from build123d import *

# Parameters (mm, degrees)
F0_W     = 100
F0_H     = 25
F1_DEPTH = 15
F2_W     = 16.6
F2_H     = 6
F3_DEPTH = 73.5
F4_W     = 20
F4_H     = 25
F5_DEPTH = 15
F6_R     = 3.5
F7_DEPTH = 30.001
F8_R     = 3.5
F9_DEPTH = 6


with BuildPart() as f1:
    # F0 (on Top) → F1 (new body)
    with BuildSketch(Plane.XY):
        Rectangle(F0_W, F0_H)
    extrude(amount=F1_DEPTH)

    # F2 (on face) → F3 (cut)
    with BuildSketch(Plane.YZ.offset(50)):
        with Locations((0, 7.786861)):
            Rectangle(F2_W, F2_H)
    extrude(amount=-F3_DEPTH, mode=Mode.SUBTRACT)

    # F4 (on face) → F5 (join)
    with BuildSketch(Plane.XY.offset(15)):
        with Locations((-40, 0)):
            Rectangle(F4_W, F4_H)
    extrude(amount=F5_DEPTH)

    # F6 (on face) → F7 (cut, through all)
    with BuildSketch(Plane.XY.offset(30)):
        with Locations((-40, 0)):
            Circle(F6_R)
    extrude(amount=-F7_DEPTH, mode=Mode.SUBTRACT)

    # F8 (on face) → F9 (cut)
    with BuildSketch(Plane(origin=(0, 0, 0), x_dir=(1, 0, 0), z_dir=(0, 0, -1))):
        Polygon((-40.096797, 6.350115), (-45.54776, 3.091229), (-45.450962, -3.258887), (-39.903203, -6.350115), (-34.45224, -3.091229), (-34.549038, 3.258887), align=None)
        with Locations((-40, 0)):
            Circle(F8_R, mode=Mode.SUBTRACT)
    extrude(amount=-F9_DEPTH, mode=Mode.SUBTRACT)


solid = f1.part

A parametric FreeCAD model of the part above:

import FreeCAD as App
import Part
import Sketcher
from FreeCAD import Vector
Q = App.Units.Quantity


def add_polygon(sketch, points):
    """Adds a closed chain of lines whose ends are joined by coincident constraints."""
    first, n = sketch.GeometryCount, len(points)
    for a, b in zip(points, points[1:] + points[:1]):
        sketch.addGeometry(Part.LineSegment(App.Vector(*a, 0), App.Vector(*b, 0)), False)
    for i in range(n):
        sketch.addConstraint(Sketcher.Constraint("Coincident", first + i, 2, first + (i + 1) % n, 1))

doc = App.newDocument("Part")
params = doc.addObject("Spreadsheet::Sheet", "Params")
for row, (alias, value) in enumerate([
    ("sketch1_width", "100 mm"),
    ("sketch1_height", "25 mm"),
    ("pad1_length", "15 mm"),
    ("sketch2_height", "6 mm"),
    ("sketch2_width", "16.6 mm"),
    ("pocket1_length", "73.5 mm"),
    ("sketch3_width", "20 mm"),
    ("sketch3_height", "25 mm"),
    ("pad2_length", "15 mm"),
    ("sketch4_diameter", "7 mm"),
    ("sketch5_diameter", "7 mm"),
    ("pocket3_length", "6 mm"),
], start=1):
    params.set(f"A{row}", alias)
    params.set(f"B{row}", "=" + value)
    params.setAlias(f"B{row}", alias)

body = doc.addObject("PartDesign::Body", "Body")

sketch1 = doc.addObject("Sketcher::SketchObject", "Sketch")
body.addObject(sketch1)
sketch1.AttachmentSupport = (doc.XY_Plane, [""])
sketch1.MapMode = "FlatFace"
add_polygon(sketch1, [(-50, 12), (-50, -12), (50, -12), (50, 12)])
sketch1.addConstraint(Sketcher.Constraint("Vertical", 0))
sketch1.addConstraint(Sketcher.Constraint("Horizontal", 1))
sketch1.addConstraint(Sketcher.Constraint("Vertical", 2))
sketch1.addConstraint(Sketcher.Constraint("Horizontal", 3))
sketch1.addConstraint(Sketcher.Constraint("Symmetric", 0, 2, 2, 2, -1, 1))
sketch1.addConstraint(Sketcher.Constraint("DistanceX", 1, 1, 1, 2, Q("100 mm")))
sketch1.addConstraint(Sketcher.Constraint("DistanceY", 0, 2, 0, 1, Q("25 mm")))
sketch1.setExpression("Constraints[9]", "Params.sketch1_width")
sketch1.setExpression("Constraints[10]", "Params.sketch1_height")
pad1 = doc.addObject("PartDesign::Pad", "Pad")
body.addObject(pad1)
pad1.Profile = sketch1
pad1.setExpression("Length", "Params.pad1_length")

sketch2 = doc.addObject("Sketcher::SketchObject", "Sketch001")
body.addObject(sketch2)
sketch2.AttachmentSupport = (doc.YZ_Plane, [""])
sketch2.MapMode = "FlatFace"
sketch2.AttachmentOffset = App.Placement(Vector(0, 0, 50), App.Rotation())
add_polygon(sketch2, [(-8, 11), (-8, 5), (8, 5), (8, 11)])
sketch2.addConstraint(Sketcher.Constraint("Vertical", 0))
sketch2.addConstraint(Sketcher.Constraint("Horizontal", 1))
sketch2.addConstraint(Sketcher.Constraint("Vertical", 2))
sketch2.addConstraint(Sketcher.Constraint("Horizontal", 3))
sketch2.addConstraint(Sketcher.Constraint("DistanceY", 0, 2, 0, 1, Q("6 mm")))
sketch2.addConstraint(Sketcher.Constraint("DistanceX", 1, 1, 1, 2, Q("16.6 mm")))
sketch2.addConstraint(Sketcher.Constraint("DistanceX", 0, 2, -1, 1, Q("8.3 mm")))
sketch2.addConstraint(Sketcher.Constraint("DistanceY", -1, 1, 0, 2, Q("4.786861 mm")))
sketch2.setExpression("Constraints[8]", "Params.sketch2_height")
sketch2.setExpression("Constraints[9]", "Params.sketch2_width")
pocket1 = doc.addObject("PartDesign::Pocket", "Pocket")
body.addObject(pocket1)
pocket1.Profile = sketch2
pocket1.setExpression("Length", "Params.pocket1_length")

sketch3 = doc.addObject("Sketcher::SketchObject", "Sketch002")
body.addObject(sketch3)
sketch3.AttachmentSupport = (doc.XY_Plane, [""])
sketch3.MapMode = "FlatFace"
sketch3.AttachmentOffset = App.Placement(Vector(0, 0, 15), App.Rotation())
add_polygon(sketch3, [(-50, 12), (-50, -12), (-30, -12), (-30, 12)])
sketch3.addConstraint(Sketcher.Constraint("Vertical", 0))
sketch3.addConstraint(Sketcher.Constraint("Horizontal", 1))
sketch3.addConstraint(Sketcher.Constraint("Vertical", 2))
sketch3.addConstraint(Sketcher.Constraint("Horizontal", 3))
sketch3.addConstraint(Sketcher.Constraint("DistanceX", 1, 1, 1, 2, Q("20 mm")))
sketch3.addConstraint(Sketcher.Constraint("DistanceY", 0, 2, 0, 1, Q("25 mm")))
sketch3.addConstraint(Sketcher.Constraint("DistanceX", 0, 2, -1, 1, Q("50 mm")))
sketch3.addConstraint(Sketcher.Constraint("DistanceY", 0, 2, -1, 1, Q("12.5 mm")))
sketch3.setExpression("Constraints[8]", "Params.sketch3_width")
sketch3.setExpression("Constraints[9]", "Params.sketch3_height")
pad2 = doc.addObject("PartDesign::Pad", "Pad001")
body.addObject(pad2)
pad2.Profile = sketch3
pad2.setExpression("Length", "Params.pad2_length")

sketch4 = doc.addObject("Sketcher::SketchObject", "Sketch003")
body.addObject(sketch4)
sketch4.AttachmentSupport = (doc.XY_Plane, [""])
sketch4.MapMode = "FlatFace"
sketch4.AttachmentOffset = App.Placement(Vector(0, 0, 30), App.Rotation())
sketch4.addGeometry(Part.Circle(Vector(-40, 0, 0), Vector(0, 0, 1), 3.5), False)
sketch4.addConstraint(Sketcher.Constraint("PointOnObject", 0, 3, -1))
sketch4.addConstraint(Sketcher.Constraint("Diameter", 0, Q("7 mm")))
sketch4.addConstraint(Sketcher.Constraint("DistanceX", 0, 3, -1, 1, Q("40 mm")))
sketch4.setExpression("Constraints[1]", "Params.sketch4_diameter")
pocket2 = doc.addObject("PartDesign::Pocket", "Pocket001")
body.addObject(pocket2)
pocket2.Profile = sketch4
pocket2.Type = "ThroughAll"

sketch5 = doc.addObject("Sketcher::SketchObject", "Sketch004")
body.addObject(sketch5)
sketch5.AttachmentSupport = (doc.XY_Plane, [""])
sketch5.MapMode = "FlatFace"
add_polygon(sketch5, [(-40.1, -6.4), (-45.5, -3.1), (-45.5, 3.3), (-39.9, 6.4), (-34.5, 3.1), (-34.5, -3.3)])
sketch5.addGeometry(Part.Circle(Vector(-40, 0, 0), Vector(0, 0, 1), 3.5), False)
sketch5.addConstraint(Sketcher.Constraint("PointOnObject", 6, 3, -1))
sketch5.addConstraint(Sketcher.Constraint("Parallel", 0, 3))
sketch5.addConstraint(Sketcher.Constraint("Parallel", 1, 4))
sketch5.addConstraint(Sketcher.Constraint("Parallel", 2, 5))
sketch5.addConstraint(Sketcher.Constraint("Equal", 0, 1))
sketch5.addConstraint(Sketcher.Constraint("Equal", 1, 2))
sketch5.addConstraint(Sketcher.Constraint("Equal", 2, 3))
sketch5.addConstraint(Sketcher.Constraint("Diameter", 6, Q("7 mm")))
sketch5.addConstraint(Sketcher.Constraint("DistanceX", 6, 3, -1, 1, Q("40 mm")))
sketch5.addConstraint(Sketcher.Constraint("Distance", 2, Q("6.350852 mm")))
sketch5.addConstraint(Sketcher.Constraint("DistanceX", 0, 2, -1, 1, Q("45.54776 mm")))
sketch5.addConstraint(Sketcher.Constraint("DistanceY", 0, 2, -1, 1, Q("3.091229 mm")))
sketch5.addConstraint(Sketcher.Constraint("DistanceX", 1, 2, -1, 1, Q("45.450962 mm")))
sketch5.addConstraint(Sketcher.Constraint("DistanceX", 3, 2, -1, 1, Q("34.45224 mm")))
sketch5.addConstraint(Sketcher.Constraint("DistanceY", -1, 1, 3, 2, Q("3.091229 mm")))
sketch5.setExpression("Constraints[13]", "Params.sketch5_diameter")
pocket3 = doc.addObject("PartDesign::Pocket", "Pocket002")
body.addObject(pocket3)
pocket3.Profile = sketch5
pocket3.setExpression("Length", "Params.pocket3_length")
pocket3.Reversed = True

doc.recompute()
